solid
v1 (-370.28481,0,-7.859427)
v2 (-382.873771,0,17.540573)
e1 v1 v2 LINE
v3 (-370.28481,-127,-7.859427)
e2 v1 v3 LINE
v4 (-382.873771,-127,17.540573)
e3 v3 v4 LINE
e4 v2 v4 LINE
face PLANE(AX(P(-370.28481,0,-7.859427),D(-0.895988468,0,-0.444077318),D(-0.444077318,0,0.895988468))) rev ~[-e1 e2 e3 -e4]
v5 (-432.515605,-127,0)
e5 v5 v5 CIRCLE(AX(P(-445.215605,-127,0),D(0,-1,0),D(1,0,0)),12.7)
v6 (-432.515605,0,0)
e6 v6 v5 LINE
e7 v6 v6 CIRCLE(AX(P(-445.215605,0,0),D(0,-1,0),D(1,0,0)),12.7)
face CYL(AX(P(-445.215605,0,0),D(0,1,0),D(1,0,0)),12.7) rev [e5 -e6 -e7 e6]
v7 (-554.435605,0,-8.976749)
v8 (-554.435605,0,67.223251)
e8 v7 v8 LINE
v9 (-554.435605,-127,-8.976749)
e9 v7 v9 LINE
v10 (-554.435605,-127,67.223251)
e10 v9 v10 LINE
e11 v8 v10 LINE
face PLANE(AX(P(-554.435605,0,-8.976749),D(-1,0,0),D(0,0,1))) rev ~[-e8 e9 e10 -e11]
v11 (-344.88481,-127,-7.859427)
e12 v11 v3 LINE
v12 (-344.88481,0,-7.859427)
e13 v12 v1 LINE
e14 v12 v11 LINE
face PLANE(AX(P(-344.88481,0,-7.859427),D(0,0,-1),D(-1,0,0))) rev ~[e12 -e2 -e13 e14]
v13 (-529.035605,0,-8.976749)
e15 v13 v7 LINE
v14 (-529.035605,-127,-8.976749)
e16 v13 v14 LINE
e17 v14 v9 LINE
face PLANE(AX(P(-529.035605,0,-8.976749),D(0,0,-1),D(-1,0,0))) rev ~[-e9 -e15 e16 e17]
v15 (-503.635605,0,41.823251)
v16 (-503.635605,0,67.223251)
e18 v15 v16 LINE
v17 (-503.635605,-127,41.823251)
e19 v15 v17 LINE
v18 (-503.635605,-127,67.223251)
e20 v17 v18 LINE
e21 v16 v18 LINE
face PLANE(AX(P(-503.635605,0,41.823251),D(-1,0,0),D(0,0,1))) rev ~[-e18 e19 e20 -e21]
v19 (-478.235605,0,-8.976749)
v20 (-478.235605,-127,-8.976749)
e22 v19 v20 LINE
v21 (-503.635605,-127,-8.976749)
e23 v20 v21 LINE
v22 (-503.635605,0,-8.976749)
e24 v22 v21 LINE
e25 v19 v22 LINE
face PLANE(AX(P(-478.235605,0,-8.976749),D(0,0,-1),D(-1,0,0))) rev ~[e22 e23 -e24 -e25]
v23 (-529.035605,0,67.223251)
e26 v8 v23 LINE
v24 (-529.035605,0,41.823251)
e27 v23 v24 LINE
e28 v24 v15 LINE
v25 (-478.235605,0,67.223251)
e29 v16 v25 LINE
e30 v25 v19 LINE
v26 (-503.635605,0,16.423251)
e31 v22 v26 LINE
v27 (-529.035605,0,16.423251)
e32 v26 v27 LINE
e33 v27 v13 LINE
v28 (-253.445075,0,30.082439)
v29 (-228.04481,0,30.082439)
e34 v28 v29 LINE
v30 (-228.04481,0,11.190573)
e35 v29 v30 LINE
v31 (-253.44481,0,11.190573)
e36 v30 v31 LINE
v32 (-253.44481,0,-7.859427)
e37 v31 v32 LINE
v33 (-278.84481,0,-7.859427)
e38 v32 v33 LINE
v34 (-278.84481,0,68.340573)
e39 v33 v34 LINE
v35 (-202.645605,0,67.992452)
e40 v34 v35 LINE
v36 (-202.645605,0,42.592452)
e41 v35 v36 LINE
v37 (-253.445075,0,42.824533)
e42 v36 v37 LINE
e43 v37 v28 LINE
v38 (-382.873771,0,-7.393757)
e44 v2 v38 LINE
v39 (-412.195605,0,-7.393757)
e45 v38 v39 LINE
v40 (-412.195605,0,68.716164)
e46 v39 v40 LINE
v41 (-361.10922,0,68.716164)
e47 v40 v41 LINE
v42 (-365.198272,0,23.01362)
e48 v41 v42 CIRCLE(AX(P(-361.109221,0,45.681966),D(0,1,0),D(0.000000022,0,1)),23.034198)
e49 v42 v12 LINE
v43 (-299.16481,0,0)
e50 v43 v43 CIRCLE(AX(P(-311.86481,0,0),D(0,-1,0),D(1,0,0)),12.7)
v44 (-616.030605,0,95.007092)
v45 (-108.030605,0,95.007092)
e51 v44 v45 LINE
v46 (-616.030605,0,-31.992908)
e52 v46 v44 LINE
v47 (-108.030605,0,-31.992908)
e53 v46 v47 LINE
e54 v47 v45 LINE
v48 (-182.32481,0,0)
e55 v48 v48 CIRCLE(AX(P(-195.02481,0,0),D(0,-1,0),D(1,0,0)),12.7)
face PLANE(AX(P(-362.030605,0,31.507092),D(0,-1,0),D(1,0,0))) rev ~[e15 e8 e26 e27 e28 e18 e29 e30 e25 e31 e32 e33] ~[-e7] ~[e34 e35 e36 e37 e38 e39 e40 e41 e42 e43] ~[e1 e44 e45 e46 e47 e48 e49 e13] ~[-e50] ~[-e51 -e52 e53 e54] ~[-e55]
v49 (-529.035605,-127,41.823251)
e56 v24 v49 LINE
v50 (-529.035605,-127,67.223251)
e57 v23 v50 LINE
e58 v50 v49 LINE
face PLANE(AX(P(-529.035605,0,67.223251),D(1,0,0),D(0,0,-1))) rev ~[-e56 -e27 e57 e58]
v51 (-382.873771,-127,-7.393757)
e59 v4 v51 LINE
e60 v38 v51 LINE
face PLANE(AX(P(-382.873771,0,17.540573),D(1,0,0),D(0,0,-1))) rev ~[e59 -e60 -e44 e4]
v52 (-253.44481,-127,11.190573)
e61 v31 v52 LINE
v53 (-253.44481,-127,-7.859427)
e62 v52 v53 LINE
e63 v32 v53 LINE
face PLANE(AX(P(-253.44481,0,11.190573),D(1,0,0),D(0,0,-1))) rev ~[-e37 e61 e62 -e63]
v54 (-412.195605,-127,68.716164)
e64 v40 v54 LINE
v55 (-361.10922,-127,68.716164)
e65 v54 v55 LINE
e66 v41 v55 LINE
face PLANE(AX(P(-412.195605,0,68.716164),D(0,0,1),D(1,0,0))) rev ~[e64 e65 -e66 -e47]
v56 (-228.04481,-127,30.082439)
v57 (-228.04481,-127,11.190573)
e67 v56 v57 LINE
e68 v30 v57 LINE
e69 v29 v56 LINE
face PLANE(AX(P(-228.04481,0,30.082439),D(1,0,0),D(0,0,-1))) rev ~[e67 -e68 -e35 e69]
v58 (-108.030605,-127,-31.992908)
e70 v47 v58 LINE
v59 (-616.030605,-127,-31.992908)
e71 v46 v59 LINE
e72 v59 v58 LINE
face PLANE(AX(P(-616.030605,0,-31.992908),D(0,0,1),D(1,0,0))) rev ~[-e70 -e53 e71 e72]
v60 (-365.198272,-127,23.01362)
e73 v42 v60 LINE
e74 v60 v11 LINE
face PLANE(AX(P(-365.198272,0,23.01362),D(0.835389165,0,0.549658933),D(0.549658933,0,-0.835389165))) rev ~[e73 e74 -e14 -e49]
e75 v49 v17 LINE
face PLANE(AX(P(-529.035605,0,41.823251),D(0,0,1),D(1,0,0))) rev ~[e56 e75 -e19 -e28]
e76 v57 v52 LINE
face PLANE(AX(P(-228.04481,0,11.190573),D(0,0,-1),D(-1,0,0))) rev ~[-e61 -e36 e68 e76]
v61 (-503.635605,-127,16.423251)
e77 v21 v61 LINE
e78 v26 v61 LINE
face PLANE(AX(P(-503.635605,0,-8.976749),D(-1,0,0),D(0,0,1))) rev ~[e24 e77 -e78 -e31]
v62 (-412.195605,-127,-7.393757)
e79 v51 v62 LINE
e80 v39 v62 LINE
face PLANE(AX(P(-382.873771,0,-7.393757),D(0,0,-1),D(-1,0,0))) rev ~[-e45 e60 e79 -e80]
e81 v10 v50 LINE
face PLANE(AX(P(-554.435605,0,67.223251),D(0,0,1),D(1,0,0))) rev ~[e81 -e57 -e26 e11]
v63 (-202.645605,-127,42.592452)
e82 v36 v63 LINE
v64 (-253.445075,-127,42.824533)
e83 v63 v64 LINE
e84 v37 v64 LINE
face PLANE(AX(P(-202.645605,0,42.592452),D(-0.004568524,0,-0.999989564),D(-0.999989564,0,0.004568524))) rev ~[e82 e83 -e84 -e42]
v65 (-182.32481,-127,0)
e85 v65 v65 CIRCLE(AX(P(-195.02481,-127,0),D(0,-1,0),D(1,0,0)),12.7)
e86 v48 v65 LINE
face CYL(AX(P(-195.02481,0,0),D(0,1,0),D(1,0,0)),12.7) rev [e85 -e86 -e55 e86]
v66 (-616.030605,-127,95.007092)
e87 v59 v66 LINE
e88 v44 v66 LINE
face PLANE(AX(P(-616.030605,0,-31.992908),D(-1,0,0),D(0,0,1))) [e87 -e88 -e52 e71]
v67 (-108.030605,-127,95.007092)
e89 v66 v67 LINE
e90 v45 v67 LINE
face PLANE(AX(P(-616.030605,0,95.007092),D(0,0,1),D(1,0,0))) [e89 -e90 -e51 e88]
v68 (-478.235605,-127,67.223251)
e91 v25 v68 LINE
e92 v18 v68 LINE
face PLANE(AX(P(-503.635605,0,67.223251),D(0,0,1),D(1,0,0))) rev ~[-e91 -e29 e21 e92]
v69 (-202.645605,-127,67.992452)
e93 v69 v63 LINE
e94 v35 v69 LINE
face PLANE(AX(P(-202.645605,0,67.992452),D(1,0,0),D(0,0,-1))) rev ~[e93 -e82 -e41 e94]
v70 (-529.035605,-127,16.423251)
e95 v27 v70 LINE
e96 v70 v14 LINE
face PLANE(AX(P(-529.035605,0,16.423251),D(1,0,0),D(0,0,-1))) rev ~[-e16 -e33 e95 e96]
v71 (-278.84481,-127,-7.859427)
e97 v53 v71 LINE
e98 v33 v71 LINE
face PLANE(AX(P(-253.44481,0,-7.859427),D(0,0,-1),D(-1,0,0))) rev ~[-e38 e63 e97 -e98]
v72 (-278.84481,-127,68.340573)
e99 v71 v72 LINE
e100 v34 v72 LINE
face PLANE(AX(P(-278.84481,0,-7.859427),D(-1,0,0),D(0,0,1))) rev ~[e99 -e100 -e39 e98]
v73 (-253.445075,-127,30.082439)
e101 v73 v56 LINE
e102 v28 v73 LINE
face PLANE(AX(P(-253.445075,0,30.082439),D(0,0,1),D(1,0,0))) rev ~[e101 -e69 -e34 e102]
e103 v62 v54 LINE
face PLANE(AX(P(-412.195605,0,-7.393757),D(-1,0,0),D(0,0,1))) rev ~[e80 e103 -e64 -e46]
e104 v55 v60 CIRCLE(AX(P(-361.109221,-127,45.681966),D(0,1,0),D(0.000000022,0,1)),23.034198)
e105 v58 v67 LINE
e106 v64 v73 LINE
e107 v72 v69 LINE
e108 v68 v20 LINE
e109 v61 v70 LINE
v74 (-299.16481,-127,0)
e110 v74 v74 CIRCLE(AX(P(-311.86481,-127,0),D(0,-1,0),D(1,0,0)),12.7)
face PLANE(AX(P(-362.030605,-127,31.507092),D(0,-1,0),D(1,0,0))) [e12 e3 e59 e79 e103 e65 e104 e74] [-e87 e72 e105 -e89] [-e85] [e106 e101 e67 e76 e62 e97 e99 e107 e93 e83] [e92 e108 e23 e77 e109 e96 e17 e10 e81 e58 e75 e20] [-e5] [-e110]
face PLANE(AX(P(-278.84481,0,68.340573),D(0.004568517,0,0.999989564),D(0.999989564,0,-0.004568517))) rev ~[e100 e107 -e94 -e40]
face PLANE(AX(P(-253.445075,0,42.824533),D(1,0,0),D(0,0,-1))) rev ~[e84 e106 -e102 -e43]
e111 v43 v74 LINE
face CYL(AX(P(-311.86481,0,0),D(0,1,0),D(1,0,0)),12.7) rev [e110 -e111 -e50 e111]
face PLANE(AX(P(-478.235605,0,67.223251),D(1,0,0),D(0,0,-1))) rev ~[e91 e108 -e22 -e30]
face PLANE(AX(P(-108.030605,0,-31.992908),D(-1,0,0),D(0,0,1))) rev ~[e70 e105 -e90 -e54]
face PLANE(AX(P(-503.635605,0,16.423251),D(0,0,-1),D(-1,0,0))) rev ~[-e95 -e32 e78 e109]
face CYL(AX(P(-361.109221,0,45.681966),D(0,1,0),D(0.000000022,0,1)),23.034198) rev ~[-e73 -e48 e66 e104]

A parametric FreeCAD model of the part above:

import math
import FreeCAD as App
import Part
import Sketcher
from FreeCAD import Vector
Q = App.Units.Quantity


def add_polygon(sketch, points):
    """Adds a closed chain of lines whose ends are joined by coincident constraints."""
    first, n = sketch.GeometryCount, len(points)
    for a, b in zip(points, points[1:] + points[:1]):
        sketch.addGeometry(Part.LineSegment(App.Vector(*a, 0), App.Vector(*b, 0)), False)
    for i in range(n):
        sketch.addConstraint(Sketcher.Constraint("Coincident", first + i, 2, first + (i + 1) % n, 1))

doc = App.newDocument("Part")
params = doc.addObject("Spreadsheet::Sheet", "Params")
for row, (alias, value) in enumerate([
    ("sketch1_diameter", "1 in"),
    ("sketch1_width", "20 in"),
    ("sketch1_width2", "1 in"),
    ("sketch1_height", "5 in"),
    ("sketch1_height2", "3 in"),
    ("pad1_length", "5 in"),
], start=1):
    params.set(f"A{row}", alias)
    params.set(f"B{row}", "=" + value)
    params.setAlias(f"B{row}", alias)

body = doc.addObject("PartDesign::Body", "Body")

# Sketch on XZ plane
sketch1 = body.newObject("Sketcher::SketchObject", "Sketch")
sketch1.AttachmentSupport = (doc.getObject("XZ_Plane"), [""])
sketch1.MapMode = "FlatFace"
add_polygon(sketch1, [(-616, 95), (-616, -32), (-108, -32), (-108, 95)])  # lines 0-3
sketch1.addGeometry(Part.Circle(Vector(-445, 0, 0), Vector(0, 0, 1), 13), False)  # 4
sketch1.addGeometry(Part.Circle(Vector(-312, 0, 0), Vector(0, 0, 1), 13), False)  # 5
sketch1.addGeometry(Part.Circle(Vector(-195, 0, 0), Vector(0, 0, 1), 13), False)  # 6
add_polygon(sketch1, [(-554, -9), (-554, 67), (-529, 67), (-529, 42), (-504, 42), (-504, 67), (-478, 67), (-478, -9), (-504, -9), (-504, 16), (-529, 16), (-529, -9)])  # lines 7-18
sketch1.addGeometry(Part.LineSegment(Vector(-383, -7, 0), Vector(-412, -7, 0)), False)  # 19
sketch1.addGeometry(Part.LineSegment(Vector(-412, -7, 0), Vector(-412, 69, 0)), False)  # 20
sketch1.addGeometry(Part.LineSegment(Vector(-412, 69, 0), Vector(-361, 69, 0)), False)  # 21
sketch1.addGeometry(Part.ArcOfCircle(Part.Circle(Vector(-361, 46, 0), Vector(0, 0, 1), 23), math.radians(-100), math.radians(90)), False)  # 22
sketch1.addGeometry(Part.LineSegment(Vector(-365, 23, 0), Vector(-345, -8, 0)), False)  # 23
sketch1.addGeometry(Part.LineSegment(Vector(-345, -8, 0), Vector(-370, -8, 0)), False)  # 24
sketch1.addGeometry(Part.LineSegment(Vector(-370, -8, 0), Vector(-383, 18, 0)), False)  # 25
sketch1.addGeometry(Part.LineSegment(Vector(-383, 18, 0), Vector(-383, -7, 0)), False)  # 26
add_polygon(sketch1, [(-253, 11), (-253, -8), (-279, -8), (-279, 68), (-203, 68), (-203, 43), (-253, 43), (-253, 30), (-228, 30), (-228, 11)])  # lines 27-36
sketch1.addConstraint([
    Sketcher.Constraint("Coincident", 19, 2, 20, 1),
    Sketcher.Constraint("Coincident", 20, 2, 21, 1),
    Sketcher.Constraint("Tangent", 21, 2, 22, 2),
    Sketcher.Constraint("Coincident", 22, 1, 23, 1),
    Sketcher.Constraint("Coincident", 23, 2, 24, 1),
    Sketcher.Constraint("Coincident", 24, 2, 25, 1),
    Sketcher.Constraint("Coincident", 25, 2, 26, 1),
    Sketcher.Constraint("Coincident", 26, 2, 19, 1),
    Sketcher.Constraint("Vertical", 0),
    Sketcher.Constraint("Horizontal", 1),
    Sketcher.Constraint("Vertical", 2),
    Sketcher.Constraint("Horizontal", 3),
    Sketcher.Constraint("Vertical", 7),
    Sketcher.Constraint("Horizontal", 8),
    Sketcher.Constraint("Vertical", 9),
    Sketcher.Constraint("Horizontal", 10),
    Sketcher.Constraint("Vertical", 11),
    Sketcher.Constraint("Horizontal", 12),
    Sketcher.Constraint("Vertical", 13),
    Sketcher.Constraint("Horizontal", 14),
    Sketcher.Constraint("Vertical", 15),
    Sketcher.Constraint("Horizontal", 16),
    Sketcher.Constraint("Vertical", 17),
    Sketcher.Constraint("Horizontal", 18),
    Sketcher.Constraint("Horizontal", 19),
    Sketcher.Constraint("Vertical", 20),
    Sketcher.Constraint("Horizontal", 21),
    Sketcher.Constraint("Horizontal", 24),
    Sketcher.Constraint("Vertical", 26),
    Sketcher.Constraint("Vertical", 27),
    Sketcher.Constraint("Horizontal", 28),
    Sketcher.Constraint("Vertical", 29),
    Sketcher.Constraint("Vertical", 31),
    Sketcher.Constraint("Vertical", 33),
    Sketcher.Constraint("Horizontal", 34),
    Sketcher.Constraint("Vertical", 35),
    Sketcher.Constraint("Horizontal", 36),
    Sketcher.Constraint("Equal", 4, 5),
    Sketcher.Constraint("Equal", 5, 6),
    Sketcher.Constraint("PointOnObject", 4, 3, -1),
    Sketcher.Constraint("PointOnObject", 5, 3, -1),
    Sketcher.Constraint("PointOnObject", 6, 3, -1),
    Sketcher.Constraint("Parallel", 30, 32),
    Sketcher.Constraint("Horizontal", 8, 2, 11, 2),
    Sketcher.Constraint("Horizontal", 14, 2, 17, 2),
    Sketcher.Constraint("Horizontal", 24, 2, 27, 2),
    Sketcher.Constraint("Vertical", 11, 2, 14, 2),
    Sketcher.Constraint("Vertical", 9, 2, 16, 2),
    Sketcher.Constraint("Equal", 8, 10),
    Sketcher.Constraint("Equal", 10, 12),
    Sketcher.Constraint("Equal", 18, 24),
    Sketcher.Constraint("Equal", 24, 28),
    Sketcher.Constraint("Equal", 28, 36),
    Sketcher.Constraint("Equal", 36, 9),
    Sketcher.Constraint("Equal", 11, 15),
    Sketcher.Constraint("Equal", 13, 29),
    Sketcher.Constraint("Equal", 17, 31),
    Sketcher.Constraint("Diameter", 4, Q("1 in")),
    Sketcher.Constraint("DistanceX", 1, 1, 1, 2, Q("20 in")),
    Sketcher.Constraint("DistanceX", 8, 1, 8, 2, Q("1 in")),
    Sketcher.Constraint("DistanceY", 0, 2, 0, 1, Q("5 in")),
    Sketcher.Constraint("DistanceY", 7, 1, 7, 2, Q("3 in")),
    Sketcher.Constraint("Distance", 30, Q("3 in")),
    Sketcher.Constraint("Distance", 32, Q("2 in")),
    Sketcher.Constraint("DistanceY", 24, 2, 25, 2, Q("1 in")),
    Sketcher.Constraint("DistanceY", 27, 2, 27, 1, Q("0.75 in")),
    Sketcher.Constraint("DistanceX", 5, 3, 6, 3, Q("4.6 in")),
    Sketcher.Constraint("DistanceX", 7, 2, 4, 3, Q("4.3 in")),
    Sketcher.Constraint("DistanceX", 4, 3, 19, 2, Q("1.3 in")),
    Sketcher.Constraint("DistanceX", 23, 2, 5, 3, Q("1.3 in")),
    Sketcher.Constraint("DistanceX", 5, 3, 27, 2, Q("2.3 in")),
    Sketcher.Constraint("DistanceX", 0, 2, 4, 3, Q("6.725 in")),
    Sketcher.Constraint("DistanceX", 30, 2, 2, 2, Q("3.725 in")),
    Sketcher.Constraint("Radius", 22, Q("23.034198 mm")),
    Sketcher.Constraint("DistanceY", 20, 1, 20, 2, Q("76.109921 mm")),
    Sketcher.Constraint("DistanceY", 26, 2, 26, 1, Q("24.93433 mm")),
    Sketcher.Constraint("DistanceX", 25, 2, 22, 1, Q("17.675499 mm")),
    Sketcher.Constraint("Distance", 25, Q("28.348579 mm")),
    Sketcher.Constraint("DistanceX", 21, 1, 21, 2, Q("51.086385 mm")),
    Sketcher.Constraint("DistanceY", 33, 2, 33, 1, Q("12.742094 mm")),
    Sketcher.Constraint("DistanceY", 35, 2, 35, 1, Q("18.891866 mm")),
    Sketcher.Constraint("DistanceX", 5, 3, -1, 1, Q("311.86481 mm")),
    Sketcher.Constraint("DistanceY", 0, 2, -1, 1, Q("31.992908 mm")),
    Sketcher.Constraint("DistanceY", -1, 1, 7, 2, Q("67.223251 mm")),
    Sketcher.Constraint("DistanceY", -1, 1, 22, 1, Q("23.01362 mm")),
])
sketch1.setExpression("Constraints[83]", "Params.sketch1_diameter")
sketch1.setExpression("Constraints[84]", "Params.sketch1_width")
sketch1.setExpression("Constraints[85]", "Params.sketch1_width2")
sketch1.setExpression("Constraints[86]", "Params.sketch1_height")
sketch1.setExpression("Constraints[87]", "Params.sketch1_height2")
pad1 = body.newObject("PartDesign::Pad", "Pad")
pad1.Profile = sketch1
pad1.setExpression("Length", "Params.pad1_length")

doc.recompute()
